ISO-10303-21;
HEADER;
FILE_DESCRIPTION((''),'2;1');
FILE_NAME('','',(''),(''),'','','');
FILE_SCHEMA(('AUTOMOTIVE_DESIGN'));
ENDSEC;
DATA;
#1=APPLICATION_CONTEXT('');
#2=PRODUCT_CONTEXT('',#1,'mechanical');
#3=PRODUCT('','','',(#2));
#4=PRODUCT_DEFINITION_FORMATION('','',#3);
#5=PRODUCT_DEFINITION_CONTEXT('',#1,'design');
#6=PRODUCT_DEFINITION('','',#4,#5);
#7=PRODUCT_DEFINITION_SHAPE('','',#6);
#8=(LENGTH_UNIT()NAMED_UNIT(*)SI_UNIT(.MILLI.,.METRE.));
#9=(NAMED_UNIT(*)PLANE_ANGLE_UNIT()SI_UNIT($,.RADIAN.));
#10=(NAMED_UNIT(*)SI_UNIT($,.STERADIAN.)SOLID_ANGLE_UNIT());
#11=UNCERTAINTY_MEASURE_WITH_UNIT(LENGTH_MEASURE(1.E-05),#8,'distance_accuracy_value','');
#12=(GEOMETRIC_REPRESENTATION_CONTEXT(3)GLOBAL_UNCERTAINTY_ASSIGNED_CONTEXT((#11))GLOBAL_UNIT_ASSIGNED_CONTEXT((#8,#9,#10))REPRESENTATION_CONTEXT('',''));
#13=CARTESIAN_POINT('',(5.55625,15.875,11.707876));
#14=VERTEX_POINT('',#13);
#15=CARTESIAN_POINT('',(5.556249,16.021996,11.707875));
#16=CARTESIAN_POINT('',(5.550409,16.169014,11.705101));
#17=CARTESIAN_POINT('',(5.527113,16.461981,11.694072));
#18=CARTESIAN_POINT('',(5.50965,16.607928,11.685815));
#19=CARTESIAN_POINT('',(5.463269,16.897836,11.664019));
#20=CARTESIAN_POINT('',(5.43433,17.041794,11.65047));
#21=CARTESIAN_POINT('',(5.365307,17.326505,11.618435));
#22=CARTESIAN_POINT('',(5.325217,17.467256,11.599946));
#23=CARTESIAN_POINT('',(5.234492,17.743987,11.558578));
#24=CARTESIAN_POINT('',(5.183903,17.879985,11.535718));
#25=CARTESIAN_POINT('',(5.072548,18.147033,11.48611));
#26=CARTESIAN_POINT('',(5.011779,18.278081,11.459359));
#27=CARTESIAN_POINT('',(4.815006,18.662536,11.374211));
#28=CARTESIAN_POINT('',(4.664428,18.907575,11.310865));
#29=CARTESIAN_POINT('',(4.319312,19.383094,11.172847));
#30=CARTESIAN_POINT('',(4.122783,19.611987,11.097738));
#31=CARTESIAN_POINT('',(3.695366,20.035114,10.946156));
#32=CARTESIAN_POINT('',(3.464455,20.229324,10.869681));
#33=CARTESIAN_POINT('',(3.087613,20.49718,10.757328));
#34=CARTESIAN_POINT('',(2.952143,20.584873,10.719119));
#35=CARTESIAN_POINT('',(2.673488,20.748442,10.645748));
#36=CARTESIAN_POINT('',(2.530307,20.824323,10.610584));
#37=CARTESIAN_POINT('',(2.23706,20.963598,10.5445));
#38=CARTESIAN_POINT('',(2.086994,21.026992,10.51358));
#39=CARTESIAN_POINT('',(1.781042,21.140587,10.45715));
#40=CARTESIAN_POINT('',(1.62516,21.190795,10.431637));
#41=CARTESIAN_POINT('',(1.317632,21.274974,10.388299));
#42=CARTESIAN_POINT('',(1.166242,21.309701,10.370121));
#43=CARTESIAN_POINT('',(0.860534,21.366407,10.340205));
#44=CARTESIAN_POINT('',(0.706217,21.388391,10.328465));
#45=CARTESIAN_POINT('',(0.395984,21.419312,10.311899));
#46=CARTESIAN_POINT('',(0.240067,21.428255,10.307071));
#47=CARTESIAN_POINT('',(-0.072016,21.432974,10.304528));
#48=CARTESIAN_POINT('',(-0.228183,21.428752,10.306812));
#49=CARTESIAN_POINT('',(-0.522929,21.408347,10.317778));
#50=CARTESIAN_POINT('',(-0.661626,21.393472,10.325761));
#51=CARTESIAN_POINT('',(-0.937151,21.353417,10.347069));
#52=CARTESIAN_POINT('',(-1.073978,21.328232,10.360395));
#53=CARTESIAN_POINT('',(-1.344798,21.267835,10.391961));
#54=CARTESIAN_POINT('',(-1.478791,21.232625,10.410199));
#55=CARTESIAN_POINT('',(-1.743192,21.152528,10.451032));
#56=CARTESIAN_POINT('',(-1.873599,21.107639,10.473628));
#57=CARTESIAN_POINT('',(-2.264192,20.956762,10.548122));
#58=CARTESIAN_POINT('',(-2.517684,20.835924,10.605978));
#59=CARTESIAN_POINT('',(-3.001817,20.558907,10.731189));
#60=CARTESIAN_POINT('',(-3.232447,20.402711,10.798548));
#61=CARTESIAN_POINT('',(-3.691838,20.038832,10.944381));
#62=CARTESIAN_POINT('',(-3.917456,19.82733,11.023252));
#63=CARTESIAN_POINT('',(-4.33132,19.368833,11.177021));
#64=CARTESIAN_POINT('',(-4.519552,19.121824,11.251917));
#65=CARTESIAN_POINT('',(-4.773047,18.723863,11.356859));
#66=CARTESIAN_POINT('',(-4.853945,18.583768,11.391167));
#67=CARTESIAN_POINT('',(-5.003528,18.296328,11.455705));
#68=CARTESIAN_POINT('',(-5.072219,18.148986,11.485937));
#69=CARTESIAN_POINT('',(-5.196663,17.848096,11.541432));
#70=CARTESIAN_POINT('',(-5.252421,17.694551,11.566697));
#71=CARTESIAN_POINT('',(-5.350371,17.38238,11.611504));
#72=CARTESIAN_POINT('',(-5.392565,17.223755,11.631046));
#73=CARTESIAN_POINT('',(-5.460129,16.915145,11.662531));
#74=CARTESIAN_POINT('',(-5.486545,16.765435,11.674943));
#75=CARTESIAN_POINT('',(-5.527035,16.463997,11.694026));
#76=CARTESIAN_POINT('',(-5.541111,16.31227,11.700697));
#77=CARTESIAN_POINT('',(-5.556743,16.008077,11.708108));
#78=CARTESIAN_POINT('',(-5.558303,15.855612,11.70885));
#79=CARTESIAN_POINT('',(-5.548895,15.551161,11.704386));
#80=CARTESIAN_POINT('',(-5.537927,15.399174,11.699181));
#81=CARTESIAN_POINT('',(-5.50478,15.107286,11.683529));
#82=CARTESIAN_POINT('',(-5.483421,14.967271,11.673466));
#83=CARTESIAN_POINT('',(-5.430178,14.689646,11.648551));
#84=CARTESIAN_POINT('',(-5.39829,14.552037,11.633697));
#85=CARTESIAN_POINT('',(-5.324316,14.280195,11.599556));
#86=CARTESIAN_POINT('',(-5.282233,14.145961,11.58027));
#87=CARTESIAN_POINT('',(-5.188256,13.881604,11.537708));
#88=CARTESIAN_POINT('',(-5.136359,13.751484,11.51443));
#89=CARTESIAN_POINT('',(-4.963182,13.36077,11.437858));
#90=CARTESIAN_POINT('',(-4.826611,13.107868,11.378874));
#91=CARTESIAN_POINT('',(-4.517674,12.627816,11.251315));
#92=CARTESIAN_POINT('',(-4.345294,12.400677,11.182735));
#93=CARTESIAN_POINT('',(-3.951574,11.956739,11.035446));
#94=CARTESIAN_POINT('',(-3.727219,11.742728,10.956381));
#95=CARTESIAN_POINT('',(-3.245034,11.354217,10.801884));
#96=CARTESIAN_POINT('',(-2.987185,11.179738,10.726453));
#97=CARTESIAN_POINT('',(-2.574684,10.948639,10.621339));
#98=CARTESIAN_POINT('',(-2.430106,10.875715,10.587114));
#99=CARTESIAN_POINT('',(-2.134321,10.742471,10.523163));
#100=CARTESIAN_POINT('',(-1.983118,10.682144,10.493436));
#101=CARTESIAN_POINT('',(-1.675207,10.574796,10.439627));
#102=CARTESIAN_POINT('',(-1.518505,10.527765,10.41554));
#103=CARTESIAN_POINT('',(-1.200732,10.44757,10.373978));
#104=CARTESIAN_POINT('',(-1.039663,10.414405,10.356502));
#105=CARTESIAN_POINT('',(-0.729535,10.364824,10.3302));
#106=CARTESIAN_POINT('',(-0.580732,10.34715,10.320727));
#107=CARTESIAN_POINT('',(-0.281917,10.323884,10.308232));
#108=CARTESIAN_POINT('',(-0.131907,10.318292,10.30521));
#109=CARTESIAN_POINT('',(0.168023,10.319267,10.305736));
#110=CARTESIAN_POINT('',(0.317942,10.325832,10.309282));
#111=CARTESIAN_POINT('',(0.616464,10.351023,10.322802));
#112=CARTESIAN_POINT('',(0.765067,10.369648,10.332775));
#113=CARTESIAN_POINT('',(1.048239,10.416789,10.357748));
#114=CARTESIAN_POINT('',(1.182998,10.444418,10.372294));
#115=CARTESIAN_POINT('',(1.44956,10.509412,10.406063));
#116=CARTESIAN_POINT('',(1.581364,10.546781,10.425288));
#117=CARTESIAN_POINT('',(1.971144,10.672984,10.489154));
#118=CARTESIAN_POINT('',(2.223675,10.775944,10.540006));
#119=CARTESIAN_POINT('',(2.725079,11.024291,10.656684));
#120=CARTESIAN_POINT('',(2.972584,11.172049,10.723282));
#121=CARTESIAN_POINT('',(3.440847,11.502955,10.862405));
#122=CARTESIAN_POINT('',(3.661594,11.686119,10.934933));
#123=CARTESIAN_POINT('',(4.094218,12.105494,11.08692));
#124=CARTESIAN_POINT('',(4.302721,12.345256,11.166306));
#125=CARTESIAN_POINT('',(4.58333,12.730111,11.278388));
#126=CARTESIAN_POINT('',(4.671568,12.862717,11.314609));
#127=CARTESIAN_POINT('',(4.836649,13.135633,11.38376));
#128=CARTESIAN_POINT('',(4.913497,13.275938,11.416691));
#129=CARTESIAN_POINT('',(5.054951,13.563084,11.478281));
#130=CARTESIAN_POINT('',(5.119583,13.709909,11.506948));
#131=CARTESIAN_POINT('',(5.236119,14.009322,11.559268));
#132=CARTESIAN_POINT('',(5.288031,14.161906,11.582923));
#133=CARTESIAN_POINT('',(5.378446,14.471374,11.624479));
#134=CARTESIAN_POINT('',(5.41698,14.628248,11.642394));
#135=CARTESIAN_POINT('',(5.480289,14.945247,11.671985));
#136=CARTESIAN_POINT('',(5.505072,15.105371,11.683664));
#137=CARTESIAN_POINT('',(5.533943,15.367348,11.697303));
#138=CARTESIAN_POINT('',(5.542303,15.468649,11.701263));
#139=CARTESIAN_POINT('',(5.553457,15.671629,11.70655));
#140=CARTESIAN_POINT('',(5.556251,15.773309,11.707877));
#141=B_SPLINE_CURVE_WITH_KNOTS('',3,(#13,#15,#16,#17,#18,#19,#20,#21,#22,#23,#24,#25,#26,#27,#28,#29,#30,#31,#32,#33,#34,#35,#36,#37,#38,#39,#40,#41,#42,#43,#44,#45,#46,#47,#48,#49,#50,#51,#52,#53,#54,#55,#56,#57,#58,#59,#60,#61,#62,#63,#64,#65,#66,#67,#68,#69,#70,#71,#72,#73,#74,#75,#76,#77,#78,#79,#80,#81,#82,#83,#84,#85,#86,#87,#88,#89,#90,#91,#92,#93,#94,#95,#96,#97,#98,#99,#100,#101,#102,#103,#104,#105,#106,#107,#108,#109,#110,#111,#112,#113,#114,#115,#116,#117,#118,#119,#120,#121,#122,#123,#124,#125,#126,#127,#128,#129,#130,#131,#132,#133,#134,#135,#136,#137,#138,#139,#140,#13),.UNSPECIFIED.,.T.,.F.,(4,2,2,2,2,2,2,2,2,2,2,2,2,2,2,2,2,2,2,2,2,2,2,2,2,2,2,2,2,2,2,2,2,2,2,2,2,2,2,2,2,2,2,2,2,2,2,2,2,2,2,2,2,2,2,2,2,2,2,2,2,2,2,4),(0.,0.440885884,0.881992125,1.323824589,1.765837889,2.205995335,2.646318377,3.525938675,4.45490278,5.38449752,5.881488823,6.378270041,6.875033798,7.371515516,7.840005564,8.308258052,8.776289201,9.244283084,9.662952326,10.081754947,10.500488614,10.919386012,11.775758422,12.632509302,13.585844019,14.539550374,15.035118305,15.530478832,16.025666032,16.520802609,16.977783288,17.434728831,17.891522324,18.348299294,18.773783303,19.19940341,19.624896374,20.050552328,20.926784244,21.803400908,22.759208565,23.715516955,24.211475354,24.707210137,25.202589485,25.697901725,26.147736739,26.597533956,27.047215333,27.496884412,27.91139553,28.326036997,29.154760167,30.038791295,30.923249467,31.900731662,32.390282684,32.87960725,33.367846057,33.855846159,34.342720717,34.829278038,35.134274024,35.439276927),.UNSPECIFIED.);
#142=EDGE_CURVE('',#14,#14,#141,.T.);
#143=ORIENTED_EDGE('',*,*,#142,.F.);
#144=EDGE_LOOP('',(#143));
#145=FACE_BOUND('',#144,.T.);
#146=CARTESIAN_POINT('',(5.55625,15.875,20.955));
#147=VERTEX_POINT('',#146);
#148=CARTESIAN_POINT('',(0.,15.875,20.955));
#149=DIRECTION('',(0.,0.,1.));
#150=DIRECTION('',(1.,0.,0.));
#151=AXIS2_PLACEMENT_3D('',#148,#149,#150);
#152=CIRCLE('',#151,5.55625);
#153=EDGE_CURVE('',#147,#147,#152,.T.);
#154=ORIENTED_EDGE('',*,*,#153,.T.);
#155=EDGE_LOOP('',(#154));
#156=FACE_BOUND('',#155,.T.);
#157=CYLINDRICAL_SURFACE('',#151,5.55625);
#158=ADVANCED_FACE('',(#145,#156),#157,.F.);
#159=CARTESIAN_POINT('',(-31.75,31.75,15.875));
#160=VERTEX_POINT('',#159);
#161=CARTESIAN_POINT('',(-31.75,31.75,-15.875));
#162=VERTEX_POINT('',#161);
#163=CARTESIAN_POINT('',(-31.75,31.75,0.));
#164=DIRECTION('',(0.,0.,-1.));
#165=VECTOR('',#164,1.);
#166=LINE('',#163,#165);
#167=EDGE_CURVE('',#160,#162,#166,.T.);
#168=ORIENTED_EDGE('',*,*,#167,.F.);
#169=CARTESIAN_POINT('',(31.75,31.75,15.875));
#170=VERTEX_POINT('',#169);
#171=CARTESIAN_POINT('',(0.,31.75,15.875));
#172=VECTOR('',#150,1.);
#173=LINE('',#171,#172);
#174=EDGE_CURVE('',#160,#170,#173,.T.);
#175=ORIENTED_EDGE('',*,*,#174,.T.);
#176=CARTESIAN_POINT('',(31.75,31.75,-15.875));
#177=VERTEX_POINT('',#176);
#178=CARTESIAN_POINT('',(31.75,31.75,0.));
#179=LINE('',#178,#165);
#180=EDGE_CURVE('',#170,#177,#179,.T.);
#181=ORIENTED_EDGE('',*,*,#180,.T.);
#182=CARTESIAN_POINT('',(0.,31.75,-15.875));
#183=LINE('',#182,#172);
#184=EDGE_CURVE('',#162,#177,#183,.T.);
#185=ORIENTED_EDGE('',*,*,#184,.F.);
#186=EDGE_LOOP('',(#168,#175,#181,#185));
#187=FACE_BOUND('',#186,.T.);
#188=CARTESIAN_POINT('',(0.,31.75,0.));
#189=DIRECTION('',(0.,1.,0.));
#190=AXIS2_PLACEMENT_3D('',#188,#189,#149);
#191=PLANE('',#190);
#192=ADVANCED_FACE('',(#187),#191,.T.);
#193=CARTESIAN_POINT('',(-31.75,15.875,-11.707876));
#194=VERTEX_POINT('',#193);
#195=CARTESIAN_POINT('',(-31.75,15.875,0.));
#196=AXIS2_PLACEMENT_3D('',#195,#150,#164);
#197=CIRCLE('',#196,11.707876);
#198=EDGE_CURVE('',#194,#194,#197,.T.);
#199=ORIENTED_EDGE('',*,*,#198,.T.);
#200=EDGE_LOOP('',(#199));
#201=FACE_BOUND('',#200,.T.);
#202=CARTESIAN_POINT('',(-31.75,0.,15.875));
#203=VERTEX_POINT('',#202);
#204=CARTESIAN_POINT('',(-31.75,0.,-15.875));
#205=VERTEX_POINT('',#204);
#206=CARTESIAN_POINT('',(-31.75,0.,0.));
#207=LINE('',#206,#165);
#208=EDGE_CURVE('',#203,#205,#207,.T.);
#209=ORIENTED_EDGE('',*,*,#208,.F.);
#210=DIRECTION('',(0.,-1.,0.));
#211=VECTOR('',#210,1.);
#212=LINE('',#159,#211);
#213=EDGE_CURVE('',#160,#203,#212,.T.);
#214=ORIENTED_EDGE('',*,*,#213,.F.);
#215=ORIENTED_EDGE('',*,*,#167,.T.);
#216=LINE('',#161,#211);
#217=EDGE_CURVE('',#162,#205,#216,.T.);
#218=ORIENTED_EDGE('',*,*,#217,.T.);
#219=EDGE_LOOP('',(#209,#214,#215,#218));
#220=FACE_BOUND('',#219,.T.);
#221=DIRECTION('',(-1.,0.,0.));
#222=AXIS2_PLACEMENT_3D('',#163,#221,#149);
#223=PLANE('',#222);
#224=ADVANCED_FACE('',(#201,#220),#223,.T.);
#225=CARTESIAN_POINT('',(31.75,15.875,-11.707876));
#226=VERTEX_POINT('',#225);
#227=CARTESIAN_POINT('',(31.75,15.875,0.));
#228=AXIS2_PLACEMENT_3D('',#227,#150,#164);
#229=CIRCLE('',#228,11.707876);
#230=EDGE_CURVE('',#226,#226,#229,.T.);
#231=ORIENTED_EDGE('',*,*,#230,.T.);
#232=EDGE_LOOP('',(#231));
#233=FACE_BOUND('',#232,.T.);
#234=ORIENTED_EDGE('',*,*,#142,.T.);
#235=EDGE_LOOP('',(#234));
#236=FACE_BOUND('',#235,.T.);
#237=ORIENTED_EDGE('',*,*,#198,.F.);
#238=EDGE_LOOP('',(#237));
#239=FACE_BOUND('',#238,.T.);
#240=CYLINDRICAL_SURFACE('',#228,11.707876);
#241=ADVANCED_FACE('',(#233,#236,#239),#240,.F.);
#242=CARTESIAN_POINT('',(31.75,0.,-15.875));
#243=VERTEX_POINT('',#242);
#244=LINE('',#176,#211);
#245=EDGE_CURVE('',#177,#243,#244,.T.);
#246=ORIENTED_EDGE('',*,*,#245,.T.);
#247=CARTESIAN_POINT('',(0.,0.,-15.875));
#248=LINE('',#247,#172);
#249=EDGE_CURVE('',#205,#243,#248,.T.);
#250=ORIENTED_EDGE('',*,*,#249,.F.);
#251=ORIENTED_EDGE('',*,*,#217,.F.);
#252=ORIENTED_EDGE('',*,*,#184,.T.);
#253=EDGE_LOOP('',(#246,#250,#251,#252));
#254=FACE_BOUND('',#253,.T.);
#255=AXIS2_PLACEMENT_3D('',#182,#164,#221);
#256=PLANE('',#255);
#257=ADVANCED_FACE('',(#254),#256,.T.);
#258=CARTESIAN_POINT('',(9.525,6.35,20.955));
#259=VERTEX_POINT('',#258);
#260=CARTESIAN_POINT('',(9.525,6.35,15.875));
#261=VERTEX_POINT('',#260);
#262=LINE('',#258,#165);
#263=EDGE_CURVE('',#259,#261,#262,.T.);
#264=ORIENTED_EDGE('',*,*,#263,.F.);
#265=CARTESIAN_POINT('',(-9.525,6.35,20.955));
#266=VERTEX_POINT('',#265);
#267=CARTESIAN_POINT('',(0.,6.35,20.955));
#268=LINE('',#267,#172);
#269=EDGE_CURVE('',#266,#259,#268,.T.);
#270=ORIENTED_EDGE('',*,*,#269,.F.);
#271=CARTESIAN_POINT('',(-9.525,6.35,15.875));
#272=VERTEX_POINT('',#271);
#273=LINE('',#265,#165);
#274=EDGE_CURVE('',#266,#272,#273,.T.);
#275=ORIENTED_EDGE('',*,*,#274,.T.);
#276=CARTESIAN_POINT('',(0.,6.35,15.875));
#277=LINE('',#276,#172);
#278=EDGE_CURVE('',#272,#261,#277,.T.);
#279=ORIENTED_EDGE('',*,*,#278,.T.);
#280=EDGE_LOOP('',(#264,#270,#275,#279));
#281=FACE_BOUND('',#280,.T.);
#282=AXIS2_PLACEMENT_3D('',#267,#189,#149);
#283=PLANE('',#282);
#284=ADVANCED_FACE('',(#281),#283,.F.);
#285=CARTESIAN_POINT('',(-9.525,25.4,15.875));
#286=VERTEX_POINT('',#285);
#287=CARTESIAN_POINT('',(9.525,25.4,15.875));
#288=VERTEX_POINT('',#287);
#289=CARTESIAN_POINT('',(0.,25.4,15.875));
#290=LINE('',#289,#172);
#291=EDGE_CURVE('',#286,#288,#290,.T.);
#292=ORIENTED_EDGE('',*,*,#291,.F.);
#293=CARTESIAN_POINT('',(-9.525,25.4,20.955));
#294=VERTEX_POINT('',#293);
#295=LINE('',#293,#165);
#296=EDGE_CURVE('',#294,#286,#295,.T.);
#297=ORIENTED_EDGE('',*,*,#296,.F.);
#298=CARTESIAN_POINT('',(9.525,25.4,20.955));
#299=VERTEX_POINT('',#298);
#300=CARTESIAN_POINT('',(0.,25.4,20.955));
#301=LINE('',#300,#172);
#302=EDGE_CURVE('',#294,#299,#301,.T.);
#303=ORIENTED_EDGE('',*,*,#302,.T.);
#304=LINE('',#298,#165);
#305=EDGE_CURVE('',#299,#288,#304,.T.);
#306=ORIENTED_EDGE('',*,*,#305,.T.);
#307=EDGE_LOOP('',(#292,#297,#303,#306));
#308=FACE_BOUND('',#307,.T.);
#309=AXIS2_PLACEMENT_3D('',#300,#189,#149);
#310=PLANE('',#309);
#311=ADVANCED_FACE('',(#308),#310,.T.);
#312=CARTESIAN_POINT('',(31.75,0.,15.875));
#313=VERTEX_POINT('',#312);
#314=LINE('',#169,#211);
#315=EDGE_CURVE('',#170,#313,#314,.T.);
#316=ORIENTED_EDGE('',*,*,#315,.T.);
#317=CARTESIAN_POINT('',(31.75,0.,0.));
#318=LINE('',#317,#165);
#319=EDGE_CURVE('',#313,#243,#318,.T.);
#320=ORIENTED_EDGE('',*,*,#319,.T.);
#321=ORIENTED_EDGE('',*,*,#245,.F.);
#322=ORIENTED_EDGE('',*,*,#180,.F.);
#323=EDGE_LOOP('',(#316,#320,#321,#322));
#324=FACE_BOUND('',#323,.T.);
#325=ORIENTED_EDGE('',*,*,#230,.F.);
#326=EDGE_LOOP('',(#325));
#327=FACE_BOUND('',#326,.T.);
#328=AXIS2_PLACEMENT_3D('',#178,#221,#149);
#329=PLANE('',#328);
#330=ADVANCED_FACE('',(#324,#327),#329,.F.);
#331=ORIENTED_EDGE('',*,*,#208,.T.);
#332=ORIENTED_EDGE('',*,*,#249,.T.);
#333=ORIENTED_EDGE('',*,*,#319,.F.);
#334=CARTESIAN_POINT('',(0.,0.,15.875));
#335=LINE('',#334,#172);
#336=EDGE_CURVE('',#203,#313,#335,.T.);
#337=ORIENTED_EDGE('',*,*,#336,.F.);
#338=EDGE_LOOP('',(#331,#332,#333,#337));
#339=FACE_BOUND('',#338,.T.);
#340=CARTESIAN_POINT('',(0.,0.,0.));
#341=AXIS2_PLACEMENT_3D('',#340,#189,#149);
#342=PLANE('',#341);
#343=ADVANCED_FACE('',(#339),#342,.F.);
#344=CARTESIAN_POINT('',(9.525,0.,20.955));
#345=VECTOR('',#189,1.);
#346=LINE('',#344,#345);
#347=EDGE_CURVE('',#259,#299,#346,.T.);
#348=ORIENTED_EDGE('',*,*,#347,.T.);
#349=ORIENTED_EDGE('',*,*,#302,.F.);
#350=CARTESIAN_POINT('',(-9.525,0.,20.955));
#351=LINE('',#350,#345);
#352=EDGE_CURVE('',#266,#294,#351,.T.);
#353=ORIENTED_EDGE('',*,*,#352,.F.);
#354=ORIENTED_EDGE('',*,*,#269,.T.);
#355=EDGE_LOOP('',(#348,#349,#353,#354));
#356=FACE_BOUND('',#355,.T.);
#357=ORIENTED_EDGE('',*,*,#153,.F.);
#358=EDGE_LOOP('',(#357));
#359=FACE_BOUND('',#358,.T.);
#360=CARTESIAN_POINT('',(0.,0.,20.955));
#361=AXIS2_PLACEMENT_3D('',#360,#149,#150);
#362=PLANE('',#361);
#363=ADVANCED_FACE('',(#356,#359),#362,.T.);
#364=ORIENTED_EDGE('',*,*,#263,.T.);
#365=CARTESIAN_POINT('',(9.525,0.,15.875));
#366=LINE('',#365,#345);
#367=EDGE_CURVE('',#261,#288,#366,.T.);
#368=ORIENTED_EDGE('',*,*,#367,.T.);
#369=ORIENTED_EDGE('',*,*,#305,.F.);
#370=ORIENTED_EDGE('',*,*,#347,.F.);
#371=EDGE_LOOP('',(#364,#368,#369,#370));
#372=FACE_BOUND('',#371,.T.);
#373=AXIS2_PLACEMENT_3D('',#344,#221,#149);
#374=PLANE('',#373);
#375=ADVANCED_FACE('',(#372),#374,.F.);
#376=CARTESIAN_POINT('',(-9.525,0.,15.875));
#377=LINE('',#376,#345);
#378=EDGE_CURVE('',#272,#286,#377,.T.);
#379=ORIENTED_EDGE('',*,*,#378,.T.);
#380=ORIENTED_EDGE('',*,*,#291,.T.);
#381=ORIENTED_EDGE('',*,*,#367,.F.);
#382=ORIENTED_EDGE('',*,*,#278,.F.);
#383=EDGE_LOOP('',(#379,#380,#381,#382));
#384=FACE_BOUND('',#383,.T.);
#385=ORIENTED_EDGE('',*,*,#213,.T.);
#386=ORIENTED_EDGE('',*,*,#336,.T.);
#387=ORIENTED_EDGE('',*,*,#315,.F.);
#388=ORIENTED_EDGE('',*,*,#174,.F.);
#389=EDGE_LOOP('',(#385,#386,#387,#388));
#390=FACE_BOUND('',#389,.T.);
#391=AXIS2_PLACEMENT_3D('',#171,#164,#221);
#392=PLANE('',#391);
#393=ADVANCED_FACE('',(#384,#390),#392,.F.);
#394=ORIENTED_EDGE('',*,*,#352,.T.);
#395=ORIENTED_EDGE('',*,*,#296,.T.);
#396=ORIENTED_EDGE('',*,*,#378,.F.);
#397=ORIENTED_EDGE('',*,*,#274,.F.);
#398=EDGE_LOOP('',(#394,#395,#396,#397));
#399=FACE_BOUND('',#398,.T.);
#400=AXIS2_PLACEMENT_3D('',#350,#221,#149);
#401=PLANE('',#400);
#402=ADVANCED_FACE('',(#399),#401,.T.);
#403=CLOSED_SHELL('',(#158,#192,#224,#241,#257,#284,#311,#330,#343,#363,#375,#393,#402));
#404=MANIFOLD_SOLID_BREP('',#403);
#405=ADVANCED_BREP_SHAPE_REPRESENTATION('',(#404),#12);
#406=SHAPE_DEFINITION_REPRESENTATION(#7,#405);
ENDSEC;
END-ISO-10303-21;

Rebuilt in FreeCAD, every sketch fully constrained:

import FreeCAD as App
import Part
import Sketcher
Q = App.Units.Quantity


def add_polygon(sketch, points):
    """Adds a closed chain of lines whose ends are joined by coincident constraints."""
    first, n = sketch.GeometryCount, len(points)
    for a, b in zip(points, points[1:] + points[:1]):
        sketch.addGeometry(Part.LineSegment(App.Vector(*a, 0), App.Vector(*b, 0)), False)
    for i in range(n):
        sketch.addConstraint(Sketcher.Constraint("Coincident", first + i, 2, first + (i + 1) % n, 1))

doc = App.newDocument("Part")
body = doc.addObject("PartDesign::Body", "Body")

# Sketch on XZ plane
sketch1 = body.newObject("Sketcher::SketchObject", "Sketch")
sketch1.AttachmentSupport = (doc.getObject("XZ_Plane"), [""])
sketch1.MapMode = "FlatFace"
add_polygon(sketch1, [(-31.75, -15.875), (-31.75, 15.875), (31.75, 15.875), (31.75, -15.875)])  # lines 0-3
sketch1.addConstraint([
    Sketcher.Constraint("Vertical", 0),
    Sketcher.Constraint("Horizontal", 1),
    Sketcher.Constraint("Vertical", 2),
    Sketcher.Constraint("Horizontal", 3),
    Sketcher.Constraint("Symmetric", 0, 2, 2, 2, -1, 1),
    Sketcher.Constraint("DistanceX", 1, 1, 1, 2, Q("2.5 in")),
    Sketcher.Constraint("DistanceY", 0, 1, 0, 2, Q("1.25 in")),
])
pad1 = body.newObject("PartDesign::Pad", "Pad")
pad1.Profile = sketch1
pad1.Length = Q("1.25 in")
pad1.Reversed = True

# Sketch on YZ plane
sketch2 = body.newObject("Sketcher::SketchObject", "Sketch001")
sketch2.AttachmentSupport = (doc.getObject("YZ_Plane"), [""])
sketch2.MapMode = "FlatFace"
sketch2.AttachmentOffset = App.Placement(App.Vector(0, 0, 1.25 * 25.4), App.Rotation())
sketch2.addGeometry(Part.Circle(App.Vector(15.875, 0, 0), App.Vector(0, 0, 1), 11.707876), False)
sketch2.addConstraint([
    Sketcher.Constraint("PointOnObject", 0, 3, -1),
    Sketcher.Constraint("DistanceX", -1, 1, 0, 3, Q("0.625 in")),
    Sketcher.Constraint("Diameter", 0, 23.415752),
])
doc.recompute()
hole = body.newObject("PartDesign::Hole", "Hole")
hole.Profile = sketch2
hole.ThreadType = "None"
hole.Diameter = 23.415752
hole.DepthType = "ThroughAll"

# Sketch on XY plane
sketch3 = body.newObject("Sketcher::SketchObject", "Sketch002")
sketch3.AttachmentSupport = (doc.getObject("XY_Plane"), [""])
sketch3.MapMode = "FlatFace"
sketch3.AttachmentOffset = App.Placement(App.Vector(0, 0, 0.625 * 25.4), App.Rotation())
add_polygon(sketch3, [(-9.525, 6.35), (9.525, 6.35), (9.525, 25.4), (-9.525, 25.4)])  # lines 0-3
sketch3.addConstraint([
    Sketcher.Constraint("Horizontal", 0),
    Sketcher.Constraint("Vertical", 1),
    Sketcher.Constraint("Horizontal", 2),
    Sketcher.Constraint("Vertical", 3),
    Sketcher.Constraint("Equal", 2, 1),
    Sketcher.Constraint("DistanceY", -1, 1, 1, 2, Q("1 in")),
    Sketcher.Constraint("DistanceX", 0, 1, 0, 2, Q("0.75 in")),
    Sketcher.Constraint("DistanceX", -1, 1, 0, 2, Q("0.375 in")),
])
pad2 = body.newObject("PartDesign::Pad", "Pad001")
pad2.Profile = sketch3
pad2.Length = Q("0.2 in")

# Sketch on XY plane
sketch4 = body.newObject("Sketcher::SketchObject", "Sketch003")
sketch4.AttachmentSupport = (doc.getObject("XY_Plane"), [""])
sketch4.MapMode = "FlatFace"
sketch4.AttachmentOffset = App.Placement(App.Vector(0, 0, 0.825 * 25.4), App.Rotation())
sketch4.addGeometry(Part.Circle(App.Vector(0, 15.875, 0), App.Vector(0, 0, 1), 5.55625), False)
sketch4.addConstraint([
    Sketcher.Constraint("PointOnObject", 0, 3, -2),
    Sketcher.Constraint("Diameter", 0, Q("0.4375 in")),
    Sketcher.Constraint("DistanceY", -1, 1, 0, 3, Q("0.625 in")),
])
doc.recompute()
hole2 = body.newObject("PartDesign::Hole", "Hole001")
hole2.Profile = sketch4
hole2.ThreadType = "None"
hole2.Diameter = Q("0.4375 in")
hole2.DepthType = "Dimension"
hole2.Depth = Q("1 in")
hole2.DrillPoint = "Angled"
hole2.DrillPointAngle = 118

doc.recompute()
